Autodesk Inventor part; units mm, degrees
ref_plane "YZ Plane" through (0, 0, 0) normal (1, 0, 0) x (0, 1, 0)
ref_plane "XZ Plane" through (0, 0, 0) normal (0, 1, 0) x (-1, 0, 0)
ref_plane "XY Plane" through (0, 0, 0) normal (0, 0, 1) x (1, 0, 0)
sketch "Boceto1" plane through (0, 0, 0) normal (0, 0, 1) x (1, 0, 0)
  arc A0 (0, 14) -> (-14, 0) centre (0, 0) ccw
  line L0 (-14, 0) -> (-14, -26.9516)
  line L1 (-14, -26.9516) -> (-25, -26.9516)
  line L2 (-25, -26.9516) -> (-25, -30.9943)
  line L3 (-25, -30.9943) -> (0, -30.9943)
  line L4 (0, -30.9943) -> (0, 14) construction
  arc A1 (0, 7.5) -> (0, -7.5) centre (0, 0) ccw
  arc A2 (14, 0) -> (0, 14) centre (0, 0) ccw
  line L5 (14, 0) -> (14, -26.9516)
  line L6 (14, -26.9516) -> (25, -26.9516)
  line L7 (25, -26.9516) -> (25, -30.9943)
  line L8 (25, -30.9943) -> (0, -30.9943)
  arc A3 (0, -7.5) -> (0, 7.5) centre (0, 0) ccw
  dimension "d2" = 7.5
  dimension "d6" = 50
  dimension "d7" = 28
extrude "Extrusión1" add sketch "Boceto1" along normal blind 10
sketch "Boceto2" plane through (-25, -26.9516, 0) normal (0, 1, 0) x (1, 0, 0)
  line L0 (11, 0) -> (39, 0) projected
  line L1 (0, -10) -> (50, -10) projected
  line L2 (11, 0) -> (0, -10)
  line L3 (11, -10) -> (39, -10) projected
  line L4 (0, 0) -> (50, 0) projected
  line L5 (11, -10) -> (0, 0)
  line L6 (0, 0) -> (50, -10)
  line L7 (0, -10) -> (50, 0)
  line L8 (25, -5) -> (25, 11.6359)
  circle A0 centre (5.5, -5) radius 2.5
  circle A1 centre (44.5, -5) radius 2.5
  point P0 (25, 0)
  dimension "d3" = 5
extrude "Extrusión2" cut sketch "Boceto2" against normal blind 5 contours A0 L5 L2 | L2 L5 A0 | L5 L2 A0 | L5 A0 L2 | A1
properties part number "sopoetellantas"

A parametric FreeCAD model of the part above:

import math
import FreeCAD as App
import Part
import Sketcher

doc = App.newDocument("Part")
body = doc.addObject("PartDesign::Body", "Body")

# Sketch on XY plane
sketch1 = body.newObject("Sketcher::SketchObject", "Sketch")
sketch1.AttachmentSupport = (doc.getObject("XY_Plane"), [""])
sketch1.MapMode = "FlatFace"
sketch1.addGeometry(Part.ArcOfCircle(Part.Circle(App.Vector(0, 0, 0), App.Vector(0, 0, 1), 14), math.radians(0), math.radians(180)), False)
sketch1.addGeometry(Part.LineSegment(App.Vector(-14, 0, 0), App.Vector(-14, -26.9516, 0)), False)
sketch1.addGeometry(Part.LineSegment(App.Vector(-14, -26.9516, 0), App.Vector(-25, -26.9516, 0)), False)
sketch1.addGeometry(Part.LineSegment(App.Vector(-25, -26.9516, 0), App.Vector(-25, -30.9943, 0)), False)
sketch1.addGeometry(Part.LineSegment(App.Vector(-25, -30.9943, 0), App.Vector(25, -30.9943, 0)), False)
sketch1.addGeometry(Part.LineSegment(App.Vector(25, -30.9943, 0), App.Vector(25, -26.9516, 0)), False)
sketch1.addGeometry(Part.LineSegment(App.Vector(25, -26.9516, 0), App.Vector(14, -26.9516, 0)), False)
sketch1.addGeometry(Part.LineSegment(App.Vector(14, -26.9516, 0), App.Vector(14, 0, 0)), False)
sketch1.addGeometry(Part.Circle(App.Vector(0, 0, 0), App.Vector(0, 0, 1), 7.5), False)
sketch1.addConstraint(Sketcher.Constraint("Tangent", 0, 2, 1, 1))
sketch1.addConstraint(Sketcher.Constraint("Coincident", 1, 2, 2, 1))
sketch1.addConstraint(Sketcher.Constraint("Coincident", 2, 2, 3, 1))
sketch1.addConstraint(Sketcher.Constraint("Coincident", 3, 2, 4, 1))
sketch1.addConstraint(Sketcher.Constraint("Coincident", 4, 2, 5, 1))
sketch1.addConstraint(Sketcher.Constraint("Coincident", 5, 2, 6, 1))
sketch1.addConstraint(Sketcher.Constraint("Coincident", 6, 2, 7, 1))
sketch1.addConstraint(Sketcher.Constraint("Tangent", 7, 2, 0, 1))
sketch1.addConstraint(Sketcher.Constraint("Vertical", 1))
sketch1.addConstraint(Sketcher.Constraint("Horizontal", 2))
sketch1.addConstraint(Sketcher.Constraint("Vertical", 3))
sketch1.addConstraint(Sketcher.Constraint("Horizontal", 4))
sketch1.addConstraint(Sketcher.Constraint("Vertical", 5))
sketch1.addConstraint(Sketcher.Constraint("Horizontal", 6))
sketch1.addConstraint(Sketcher.Constraint("Vertical", 7))
sketch1.addConstraint(Sketcher.Constraint("Coincident", 0, 3, -1, 1))
sketch1.addConstraint(Sketcher.Constraint("Coincident", 8, 3, -1, 1))
sketch1.addConstraint(Sketcher.Constraint("Symmetric", 2, 2, 5, 2, -2))
sketch1.addConstraint(Sketcher.Constraint("Diameter", 8, 15.0))
sketch1.addConstraint(Sketcher.Constraint("Radius", 0, 14.0))
sketch1.addConstraint(Sketcher.Constraint("DistanceX", 4, 1, 4, 2, 50.0))
sketch1.addConstraint(Sketcher.Constraint("DistanceY", 1, 2, 1, 1, 26.9516))
sketch1.addConstraint(Sketcher.Constraint("DistanceY", 3, 2, 3, 1, 4.0427))
pad1 = body.newObject("PartDesign::Pad", "Pad")
pad1.Profile = sketch1
pad1.Length = 10

# Sketch on XZ plane
sketch2 = body.newObject("Sketcher::SketchObject", "Sketch001")
sketch2.AttachmentSupport = (doc.getObject("XZ_Plane"), [""])
sketch2.MapMode = "FlatFace"
sketch2.AttachmentOffset = App.Placement(App.Vector(0, 0, 26.9516), App.Rotation())
sketch2.addGeometry(Part.Circle(App.Vector(-19.5, 5, 0), App.Vector(0, 0, 1), 2.5), False)
sketch2.addGeometry(Part.Circle(App.Vector(19.5, 5, 0), App.Vector(0, 0, 1), 2.5), False)
sketch2.addConstraint(Sketcher.Constraint("Equal", 0, 1))
sketch2.addConstraint(Sketcher.Constraint("Symmetric", 0, 3, 1, 3, -2))
sketch2.addConstraint(Sketcher.Constraint("Diameter", 0, 5.0))
sketch2.addConstraint(Sketcher.Constraint("DistanceY", -1, 1, 0, 3, 5.0))
sketch2.addConstraint(Sketcher.Constraint("DistanceX", 0, 3, 1, 3, 39.0))
pocket1 = body.newObject("PartDesign::Pocket", "Pocket")
pocket1.Profile = sketch2
pocket1.Length = 5
pocket1.Reversed = True

doc.recompute()
